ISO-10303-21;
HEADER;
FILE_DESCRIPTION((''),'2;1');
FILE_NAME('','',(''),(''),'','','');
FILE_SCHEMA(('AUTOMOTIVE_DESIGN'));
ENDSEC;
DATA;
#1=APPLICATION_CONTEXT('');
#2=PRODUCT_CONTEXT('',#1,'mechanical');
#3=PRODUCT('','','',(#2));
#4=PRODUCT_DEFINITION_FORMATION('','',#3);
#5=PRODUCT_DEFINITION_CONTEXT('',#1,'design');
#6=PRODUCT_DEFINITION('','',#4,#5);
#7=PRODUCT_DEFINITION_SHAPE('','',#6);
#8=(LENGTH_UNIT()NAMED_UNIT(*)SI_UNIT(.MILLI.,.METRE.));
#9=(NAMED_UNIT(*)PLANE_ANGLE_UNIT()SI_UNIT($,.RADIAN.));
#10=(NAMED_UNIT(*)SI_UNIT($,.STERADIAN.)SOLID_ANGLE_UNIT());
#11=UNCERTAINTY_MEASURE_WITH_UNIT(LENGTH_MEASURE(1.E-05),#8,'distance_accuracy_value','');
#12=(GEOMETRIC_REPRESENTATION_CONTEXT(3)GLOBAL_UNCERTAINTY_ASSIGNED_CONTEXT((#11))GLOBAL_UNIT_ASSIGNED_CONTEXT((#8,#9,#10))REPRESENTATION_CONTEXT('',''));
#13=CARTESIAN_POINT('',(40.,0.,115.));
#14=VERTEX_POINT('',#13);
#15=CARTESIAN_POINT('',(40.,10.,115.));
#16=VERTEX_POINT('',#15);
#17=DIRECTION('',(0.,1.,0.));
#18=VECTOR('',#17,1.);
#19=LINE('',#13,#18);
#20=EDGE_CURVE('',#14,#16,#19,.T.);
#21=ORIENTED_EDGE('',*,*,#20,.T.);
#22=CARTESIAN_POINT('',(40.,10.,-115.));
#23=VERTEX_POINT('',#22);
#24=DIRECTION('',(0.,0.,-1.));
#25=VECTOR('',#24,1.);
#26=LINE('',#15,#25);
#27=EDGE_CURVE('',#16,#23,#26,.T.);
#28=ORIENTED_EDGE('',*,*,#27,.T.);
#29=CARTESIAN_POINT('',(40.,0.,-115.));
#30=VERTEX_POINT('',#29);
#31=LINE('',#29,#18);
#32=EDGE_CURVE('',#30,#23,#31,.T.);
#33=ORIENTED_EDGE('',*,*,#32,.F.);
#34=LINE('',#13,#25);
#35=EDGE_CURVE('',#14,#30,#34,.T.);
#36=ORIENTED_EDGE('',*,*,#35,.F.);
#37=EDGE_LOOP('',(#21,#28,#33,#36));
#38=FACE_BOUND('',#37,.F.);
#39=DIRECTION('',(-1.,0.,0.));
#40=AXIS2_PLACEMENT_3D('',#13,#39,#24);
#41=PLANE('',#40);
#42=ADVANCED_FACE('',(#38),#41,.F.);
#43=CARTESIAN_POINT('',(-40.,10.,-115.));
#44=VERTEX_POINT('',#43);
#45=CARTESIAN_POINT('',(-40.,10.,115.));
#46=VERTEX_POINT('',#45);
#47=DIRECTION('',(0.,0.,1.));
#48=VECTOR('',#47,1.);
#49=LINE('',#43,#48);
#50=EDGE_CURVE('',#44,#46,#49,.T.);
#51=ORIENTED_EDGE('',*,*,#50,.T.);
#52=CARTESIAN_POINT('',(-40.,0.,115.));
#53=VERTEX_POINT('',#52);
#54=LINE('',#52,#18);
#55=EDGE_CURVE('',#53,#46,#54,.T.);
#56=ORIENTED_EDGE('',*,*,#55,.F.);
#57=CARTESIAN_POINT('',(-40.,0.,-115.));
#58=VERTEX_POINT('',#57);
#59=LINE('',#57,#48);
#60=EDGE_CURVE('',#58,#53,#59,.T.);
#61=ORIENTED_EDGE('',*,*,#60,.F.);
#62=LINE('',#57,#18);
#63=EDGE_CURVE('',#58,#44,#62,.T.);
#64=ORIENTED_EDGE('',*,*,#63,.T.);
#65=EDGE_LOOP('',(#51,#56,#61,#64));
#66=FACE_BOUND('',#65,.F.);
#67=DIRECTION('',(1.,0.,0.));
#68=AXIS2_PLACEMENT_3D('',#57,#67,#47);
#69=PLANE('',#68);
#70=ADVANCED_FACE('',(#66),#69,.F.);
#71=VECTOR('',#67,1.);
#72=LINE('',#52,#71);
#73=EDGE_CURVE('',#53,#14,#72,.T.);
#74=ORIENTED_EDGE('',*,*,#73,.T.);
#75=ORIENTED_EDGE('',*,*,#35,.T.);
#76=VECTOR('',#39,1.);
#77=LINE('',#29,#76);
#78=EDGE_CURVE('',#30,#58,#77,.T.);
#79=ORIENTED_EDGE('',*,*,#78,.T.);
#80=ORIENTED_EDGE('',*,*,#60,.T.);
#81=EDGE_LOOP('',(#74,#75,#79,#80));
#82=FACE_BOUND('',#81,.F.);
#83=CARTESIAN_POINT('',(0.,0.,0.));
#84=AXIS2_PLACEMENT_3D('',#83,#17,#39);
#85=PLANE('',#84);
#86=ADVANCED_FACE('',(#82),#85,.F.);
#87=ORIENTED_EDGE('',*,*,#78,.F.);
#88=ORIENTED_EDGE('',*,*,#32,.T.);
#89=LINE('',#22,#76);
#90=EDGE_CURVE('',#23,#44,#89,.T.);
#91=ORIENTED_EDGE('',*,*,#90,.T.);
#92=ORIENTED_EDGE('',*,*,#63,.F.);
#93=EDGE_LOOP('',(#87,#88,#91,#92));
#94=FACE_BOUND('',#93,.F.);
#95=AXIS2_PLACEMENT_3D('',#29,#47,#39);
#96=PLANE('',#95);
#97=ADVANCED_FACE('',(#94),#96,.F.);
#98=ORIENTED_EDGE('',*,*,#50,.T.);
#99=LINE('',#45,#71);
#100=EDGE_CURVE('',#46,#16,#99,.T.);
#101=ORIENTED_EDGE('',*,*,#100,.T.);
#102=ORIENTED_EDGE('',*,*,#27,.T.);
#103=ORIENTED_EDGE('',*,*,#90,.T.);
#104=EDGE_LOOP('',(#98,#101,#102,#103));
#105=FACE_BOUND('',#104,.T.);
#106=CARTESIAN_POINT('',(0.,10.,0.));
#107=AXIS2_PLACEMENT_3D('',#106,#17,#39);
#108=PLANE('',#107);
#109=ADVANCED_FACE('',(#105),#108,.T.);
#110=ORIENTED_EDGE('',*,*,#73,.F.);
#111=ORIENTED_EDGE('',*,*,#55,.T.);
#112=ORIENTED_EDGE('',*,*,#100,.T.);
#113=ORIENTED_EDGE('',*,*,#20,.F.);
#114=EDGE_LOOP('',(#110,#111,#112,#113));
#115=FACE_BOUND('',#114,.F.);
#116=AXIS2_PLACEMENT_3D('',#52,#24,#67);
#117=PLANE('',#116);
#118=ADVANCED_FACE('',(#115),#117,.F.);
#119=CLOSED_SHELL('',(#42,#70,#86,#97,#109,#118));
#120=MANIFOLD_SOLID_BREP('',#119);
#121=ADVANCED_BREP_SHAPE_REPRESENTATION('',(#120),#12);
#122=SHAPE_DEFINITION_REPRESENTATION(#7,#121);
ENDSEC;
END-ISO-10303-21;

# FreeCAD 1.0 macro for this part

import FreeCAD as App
import Part
import Sketcher

V = App.Vector
Q = App.Units.Quantity


def add_polygon(sketch, points):
    """Adds a closed chain of lines whose ends are joined by coincident constraints."""
    first, n = sketch.GeometryCount, len(points)
    for a, b in zip(points, points[1:] + points[:1]):
        sketch.addGeometry(Part.LineSegment(App.Vector(*a, 0), App.Vector(*b, 0)), False)
    for i in range(n):
        sketch.addConstraint(Sketcher.Constraint("Coincident", first + i, 2, first + (i + 1) % n, 1))

doc = App.newDocument("Part")
body = doc.addObject("PartDesign::Body", "Body")

# Sketch on XZ plane
sketch1 = body.newObject("Sketcher::SketchObject", "Sketch")
sketch1.AttachmentSupport = (doc.getObject("XZ_Plane"), [""])
sketch1.MapMode = "FlatFace"
add_polygon(sketch1, [(-40, -115), (-40, 115), (40, 115), (40, -115)])  # lines 0-3
sketch1.addConstraint([
    Sketcher.Constraint("Vertical", 0),
    Sketcher.Constraint("Horizontal", 1),
    Sketcher.Constraint("Vertical", 2),
    Sketcher.Constraint("Horizontal", 3),
    Sketcher.Constraint("Symmetric", 0, 2, 2, 2, -1, 1),
    Sketcher.Constraint("DistanceX", 1, 1, 1, 2, Q("80 mm")),
    Sketcher.Constraint("DistanceY", 0, 1, 0, 2, Q("230 mm")),
])
pad1 = body.newObject("PartDesign::Pad", "Pad")
pad1.Profile = sketch1
pad1.Length = 10
pad1.Reversed = True

doc.recompute()
